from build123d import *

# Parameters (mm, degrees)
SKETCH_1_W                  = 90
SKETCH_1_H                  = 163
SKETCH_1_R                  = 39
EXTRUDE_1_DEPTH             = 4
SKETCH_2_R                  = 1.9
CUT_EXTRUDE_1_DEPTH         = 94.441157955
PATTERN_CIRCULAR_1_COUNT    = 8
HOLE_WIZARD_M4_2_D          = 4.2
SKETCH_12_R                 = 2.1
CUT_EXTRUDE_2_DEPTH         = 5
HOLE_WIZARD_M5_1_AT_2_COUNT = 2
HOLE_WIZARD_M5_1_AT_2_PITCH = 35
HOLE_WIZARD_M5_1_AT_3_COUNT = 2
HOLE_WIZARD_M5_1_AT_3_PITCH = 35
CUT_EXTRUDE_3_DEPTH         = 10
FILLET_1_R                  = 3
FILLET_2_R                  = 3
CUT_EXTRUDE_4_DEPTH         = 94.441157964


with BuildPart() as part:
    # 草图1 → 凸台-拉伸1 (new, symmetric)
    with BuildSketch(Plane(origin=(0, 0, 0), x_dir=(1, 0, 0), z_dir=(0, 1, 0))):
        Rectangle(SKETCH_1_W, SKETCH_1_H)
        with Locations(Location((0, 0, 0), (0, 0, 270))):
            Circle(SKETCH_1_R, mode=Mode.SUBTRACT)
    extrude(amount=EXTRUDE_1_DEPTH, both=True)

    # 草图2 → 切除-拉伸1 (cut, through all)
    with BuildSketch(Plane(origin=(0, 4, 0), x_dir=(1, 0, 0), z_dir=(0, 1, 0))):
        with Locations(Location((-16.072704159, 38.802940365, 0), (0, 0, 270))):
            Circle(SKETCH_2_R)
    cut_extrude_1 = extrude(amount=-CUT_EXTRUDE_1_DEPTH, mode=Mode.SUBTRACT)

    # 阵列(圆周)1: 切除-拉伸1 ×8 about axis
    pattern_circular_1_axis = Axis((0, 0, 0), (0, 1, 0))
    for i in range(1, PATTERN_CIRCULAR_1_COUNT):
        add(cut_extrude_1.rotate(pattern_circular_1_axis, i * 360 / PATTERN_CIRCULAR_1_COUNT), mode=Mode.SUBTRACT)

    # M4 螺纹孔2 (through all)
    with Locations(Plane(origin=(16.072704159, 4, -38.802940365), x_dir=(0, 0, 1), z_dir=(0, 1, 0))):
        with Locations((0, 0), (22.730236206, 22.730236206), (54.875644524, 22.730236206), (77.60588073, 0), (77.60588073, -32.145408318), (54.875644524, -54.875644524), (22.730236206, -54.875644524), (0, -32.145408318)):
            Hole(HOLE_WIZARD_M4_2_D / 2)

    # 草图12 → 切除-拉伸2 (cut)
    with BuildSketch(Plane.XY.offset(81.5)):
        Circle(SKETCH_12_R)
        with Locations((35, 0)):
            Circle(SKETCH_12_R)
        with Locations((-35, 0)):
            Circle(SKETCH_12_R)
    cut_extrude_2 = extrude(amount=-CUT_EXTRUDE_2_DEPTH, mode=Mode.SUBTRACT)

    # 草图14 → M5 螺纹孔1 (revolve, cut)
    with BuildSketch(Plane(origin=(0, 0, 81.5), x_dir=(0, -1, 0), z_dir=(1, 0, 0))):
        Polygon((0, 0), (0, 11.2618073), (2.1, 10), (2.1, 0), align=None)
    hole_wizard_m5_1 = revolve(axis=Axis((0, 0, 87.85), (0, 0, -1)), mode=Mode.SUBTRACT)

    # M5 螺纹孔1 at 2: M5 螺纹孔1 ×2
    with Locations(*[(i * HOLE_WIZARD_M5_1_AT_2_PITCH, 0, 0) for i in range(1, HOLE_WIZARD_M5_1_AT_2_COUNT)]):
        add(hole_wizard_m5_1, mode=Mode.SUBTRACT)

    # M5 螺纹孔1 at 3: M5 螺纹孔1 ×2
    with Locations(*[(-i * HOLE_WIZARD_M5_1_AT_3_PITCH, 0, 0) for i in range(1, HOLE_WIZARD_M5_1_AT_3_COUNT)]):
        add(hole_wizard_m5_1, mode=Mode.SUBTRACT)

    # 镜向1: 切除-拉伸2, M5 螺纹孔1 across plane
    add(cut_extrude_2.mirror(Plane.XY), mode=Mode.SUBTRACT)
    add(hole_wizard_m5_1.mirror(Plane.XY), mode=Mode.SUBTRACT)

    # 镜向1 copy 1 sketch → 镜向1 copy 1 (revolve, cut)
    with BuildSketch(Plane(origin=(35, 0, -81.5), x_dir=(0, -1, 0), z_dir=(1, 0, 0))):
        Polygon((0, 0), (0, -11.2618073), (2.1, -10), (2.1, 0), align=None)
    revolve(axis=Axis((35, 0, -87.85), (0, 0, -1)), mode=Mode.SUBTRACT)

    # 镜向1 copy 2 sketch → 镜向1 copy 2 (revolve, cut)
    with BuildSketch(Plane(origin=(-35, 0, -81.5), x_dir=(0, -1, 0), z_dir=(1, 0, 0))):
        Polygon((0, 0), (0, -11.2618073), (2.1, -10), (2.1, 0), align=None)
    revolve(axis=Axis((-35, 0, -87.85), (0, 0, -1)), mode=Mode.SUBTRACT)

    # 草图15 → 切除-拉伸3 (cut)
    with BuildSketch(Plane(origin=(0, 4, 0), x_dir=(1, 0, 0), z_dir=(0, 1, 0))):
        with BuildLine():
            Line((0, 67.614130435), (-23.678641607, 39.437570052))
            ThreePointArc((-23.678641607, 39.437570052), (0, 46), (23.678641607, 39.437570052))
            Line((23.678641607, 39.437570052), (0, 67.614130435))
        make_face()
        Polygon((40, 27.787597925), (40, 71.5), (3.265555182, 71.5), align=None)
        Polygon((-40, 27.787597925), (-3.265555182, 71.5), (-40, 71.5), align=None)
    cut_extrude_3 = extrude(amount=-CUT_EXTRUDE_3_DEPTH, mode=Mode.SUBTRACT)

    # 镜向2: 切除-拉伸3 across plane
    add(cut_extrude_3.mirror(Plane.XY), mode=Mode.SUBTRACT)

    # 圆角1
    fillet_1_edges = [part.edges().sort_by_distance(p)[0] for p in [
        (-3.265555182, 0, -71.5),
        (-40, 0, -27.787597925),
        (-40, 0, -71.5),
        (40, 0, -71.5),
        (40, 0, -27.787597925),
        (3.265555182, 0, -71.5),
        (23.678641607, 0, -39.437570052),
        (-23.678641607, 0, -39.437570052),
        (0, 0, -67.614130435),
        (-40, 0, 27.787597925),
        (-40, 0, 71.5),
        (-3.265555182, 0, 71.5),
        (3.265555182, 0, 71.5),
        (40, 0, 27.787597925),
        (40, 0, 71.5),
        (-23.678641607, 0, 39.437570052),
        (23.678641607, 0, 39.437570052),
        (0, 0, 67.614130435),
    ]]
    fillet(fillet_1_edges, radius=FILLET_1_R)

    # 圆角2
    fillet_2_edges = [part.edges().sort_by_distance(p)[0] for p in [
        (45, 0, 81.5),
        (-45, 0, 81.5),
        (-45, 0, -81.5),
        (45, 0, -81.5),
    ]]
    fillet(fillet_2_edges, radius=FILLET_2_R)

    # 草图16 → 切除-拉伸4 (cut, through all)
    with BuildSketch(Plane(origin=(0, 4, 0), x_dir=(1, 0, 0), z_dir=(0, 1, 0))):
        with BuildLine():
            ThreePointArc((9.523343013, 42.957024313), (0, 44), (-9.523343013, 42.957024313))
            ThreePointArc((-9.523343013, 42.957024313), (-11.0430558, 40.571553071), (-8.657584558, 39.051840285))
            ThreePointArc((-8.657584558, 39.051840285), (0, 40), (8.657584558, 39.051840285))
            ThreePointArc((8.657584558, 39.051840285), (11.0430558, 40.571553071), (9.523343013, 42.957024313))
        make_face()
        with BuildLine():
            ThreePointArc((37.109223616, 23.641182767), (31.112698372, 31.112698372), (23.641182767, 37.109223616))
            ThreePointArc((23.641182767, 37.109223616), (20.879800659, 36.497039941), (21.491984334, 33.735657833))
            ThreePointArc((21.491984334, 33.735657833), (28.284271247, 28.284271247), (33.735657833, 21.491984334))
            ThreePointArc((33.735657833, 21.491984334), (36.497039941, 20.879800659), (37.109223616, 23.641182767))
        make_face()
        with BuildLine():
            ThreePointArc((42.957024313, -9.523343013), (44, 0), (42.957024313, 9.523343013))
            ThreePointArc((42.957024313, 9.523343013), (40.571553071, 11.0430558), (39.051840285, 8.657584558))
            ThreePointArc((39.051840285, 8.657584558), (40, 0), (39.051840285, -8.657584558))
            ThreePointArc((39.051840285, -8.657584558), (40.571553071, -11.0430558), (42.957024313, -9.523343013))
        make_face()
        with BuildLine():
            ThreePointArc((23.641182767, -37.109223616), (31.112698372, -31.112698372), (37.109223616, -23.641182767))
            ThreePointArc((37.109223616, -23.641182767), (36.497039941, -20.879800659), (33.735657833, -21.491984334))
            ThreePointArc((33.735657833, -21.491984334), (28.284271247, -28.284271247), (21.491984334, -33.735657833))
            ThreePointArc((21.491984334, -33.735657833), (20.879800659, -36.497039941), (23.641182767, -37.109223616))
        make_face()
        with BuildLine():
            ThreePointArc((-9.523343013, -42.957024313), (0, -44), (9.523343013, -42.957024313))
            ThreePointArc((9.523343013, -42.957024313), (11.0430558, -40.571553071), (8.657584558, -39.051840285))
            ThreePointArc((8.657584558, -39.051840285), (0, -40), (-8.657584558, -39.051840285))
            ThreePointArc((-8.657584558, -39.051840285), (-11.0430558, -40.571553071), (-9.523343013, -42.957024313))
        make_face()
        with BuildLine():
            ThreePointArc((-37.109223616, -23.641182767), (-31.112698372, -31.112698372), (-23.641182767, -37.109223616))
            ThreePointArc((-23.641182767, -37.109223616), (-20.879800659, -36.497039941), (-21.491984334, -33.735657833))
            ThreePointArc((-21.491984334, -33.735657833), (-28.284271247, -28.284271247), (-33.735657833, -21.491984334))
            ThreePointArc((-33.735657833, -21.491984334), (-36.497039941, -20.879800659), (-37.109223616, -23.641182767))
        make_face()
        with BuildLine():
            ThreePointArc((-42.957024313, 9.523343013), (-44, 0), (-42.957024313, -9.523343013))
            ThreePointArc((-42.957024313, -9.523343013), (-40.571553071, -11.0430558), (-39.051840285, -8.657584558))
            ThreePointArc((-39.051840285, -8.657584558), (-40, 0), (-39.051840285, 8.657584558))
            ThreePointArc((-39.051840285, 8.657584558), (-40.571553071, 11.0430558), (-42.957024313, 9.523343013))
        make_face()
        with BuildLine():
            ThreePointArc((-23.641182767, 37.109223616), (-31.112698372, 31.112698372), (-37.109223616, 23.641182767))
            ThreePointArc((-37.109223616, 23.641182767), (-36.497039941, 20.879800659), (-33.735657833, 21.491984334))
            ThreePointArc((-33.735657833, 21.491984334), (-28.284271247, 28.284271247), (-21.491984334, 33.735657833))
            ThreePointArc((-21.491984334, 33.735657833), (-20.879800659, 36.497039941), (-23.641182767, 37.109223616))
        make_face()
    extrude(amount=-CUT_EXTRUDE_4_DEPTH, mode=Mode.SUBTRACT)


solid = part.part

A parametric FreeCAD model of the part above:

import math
import FreeCAD as App
import Part
import Sketcher
Q = App.Units.Quantity


def edges_at(feature, points):
    """Names of the edges that pass closest to the given points."""
    edges = feature.Shape.Edges
    near = lambda p: min(range(len(edges)), key=lambda i: edges[i].distToShape(Part.Vertex(*p))[0])
    return sorted({f"Edge{near(p) + 1}" for p in points})


def add_polygon(sketch, points):
    """Adds a closed chain of lines whose ends are joined by coincident constraints."""
    first, n = sketch.GeometryCount, len(points)
    for a, b in zip(points, points[1:] + points[:1]):
        sketch.addGeometry(Part.LineSegment(App.Vector(*a, 0), App.Vector(*b, 0)), False)
    for i in range(n):
        sketch.addConstraint(Sketcher.Constraint("Coincident", first + i, 2, first + (i + 1) % n, 1))

doc = App.newDocument("Part")
body = doc.addObject("PartDesign::Body", "Body")

sketch1 = body.newObject("Sketcher::SketchObject", "Sketch")
sketch1.AttachmentSupport = (doc.getObject("XZ_Plane"), [""])
sketch1.MapMode = "FlatFace"
add_polygon(sketch1, [(-45, -81.5), (-45, 81.5), (45, 81.5), (45, -81.5)])
sketch1.addGeometry(Part.Circle(App.Vector(0, 0, 0), App.Vector(0, 0, 1), 39), False)
sketch1.addConstraint([
    Sketcher.Constraint("Vertical", 0),
    Sketcher.Constraint("Horizontal", 1),
    Sketcher.Constraint("Vertical", 2),
    Sketcher.Constraint("Horizontal", 3),
    Sketcher.Constraint("Coincident", 4, 3, -1, 1),
    Sketcher.Constraint("Symmetric", 0, 2, 2, 2, -1, 1),
    Sketcher.Constraint("Diameter", 4, Q("78 mm")),
    Sketcher.Constraint("DistanceX", 1, 1, 1, 2, Q("90 mm")),
    Sketcher.Constraint("DistanceY", 0, 1, 0, 2, Q("163 mm")),
])
pad1 = body.newObject("PartDesign::Pad", "Pad")
pad1.Profile = sketch1
pad1.Length = 8
pad1.Midplane = True

sketch2 = body.newObject("Sketcher::SketchObject", "Sketch001")
sketch2.AttachmentSupport = (doc.getObject("XZ_Plane"), [""])
sketch2.MapMode = "FlatFace"
sketch2.AttachmentOffset = App.Placement(App.Vector(0, 0, -4), App.Rotation())
sketch2.addGeometry(Part.Circle(App.Vector(-16.072704, -38.80294, 0), App.Vector(0, 0, 1), 1.9), False)
sketch2.addConstraint([
    Sketcher.Constraint("Diameter", 0, Q("3.8 mm")),
    Sketcher.Constraint("DistanceY", 0, 3, -1, 1, Q("38.80294 mm")),
    Sketcher.Constraint("DistanceX", 0, 3, -1, 1, Q("16.072704 mm")),
])
pocket1 = body.newObject("PartDesign::Pocket", "Pocket")
pocket1.Profile = sketch2
pocket1.Type = "ThroughAll"
pocket1.Reversed = True
doc.recompute()

polarpattern = body.newObject("PartDesign::PolarPattern", "PolarPattern")
polarpattern.Originals = [pocket1]
polarpattern.Axis = (doc.getObject("Y_Axis"), [""])
polarpattern.Angle = 360
polarpattern.Occurrences = 8
body.Tip = polarpattern

sketch3 = body.newObject("Sketcher::SketchObject", "Sketch002")
sketch3.AttachmentSupport = (doc.getObject("XZ_Plane"), [""])
sketch3.MapMode = "FlatFace"
sketch3.AttachmentOffset = App.Placement(App.Vector(0, 0, -4), App.Rotation())
sketch3.addGeometry([
    Part.Circle(App.Vector(16.072704, -38.80294, 0), App.Vector(0, 0, 1), 2.1),
    Part.Circle(App.Vector(38.80294, -16.072704, 0), App.Vector(0, 0, 1), 2.1),
    Part.Circle(App.Vector(38.80294, 16.072704, 0), App.Vector(0, 0, 1), 2.1),
    Part.Circle(App.Vector(16.072704, 38.80294, 0), App.Vector(0, 0, 1), 2.1),
    Part.Circle(App.Vector(-16.072704, 38.80294, 0), App.Vector(0, 0, 1), 2.1),
    Part.Circle(App.Vector(-38.80294, 16.072704, 0), App.Vector(0, 0, 1), 2.1),
    Part.Circle(App.Vector(-38.80294, -16.072704, 0), App.Vector(0, 0, 1), 2.1),
    Part.Circle(App.Vector(-16.072704, -38.80294, 0), App.Vector(0, 0, 1), 2.1),
], False)
sketch3.addConstraint([
    Sketcher.Constraint("Equal", 0, 1),
    Sketcher.Constraint("Equal", 1, 2),
    Sketcher.Constraint("Equal", 2, 3),
    Sketcher.Constraint("Equal", 3, 4),
    Sketcher.Constraint("Equal", 4, 5),
    Sketcher.Constraint("Equal", 5, 6),
    Sketcher.Constraint("Equal", 6, 7),
    Sketcher.Constraint("Symmetric", 0, 3, 4, 3, -1, 1),
    Sketcher.Constraint("Symmetric", 1, 3, 5, 3, -1, 1),
    Sketcher.Constraint("Symmetric", 2, 3, 6, 3, -1, 1),
    Sketcher.Constraint("Symmetric", 3, 3, 7, 3, -1, 1),
    Sketcher.Constraint("Symmetric", 3, 3, 4, 3, -2),
    Sketcher.Constraint("Symmetric", 2, 3, 5, 3, -2),
    Sketcher.Constraint("Diameter", 0, Q("4.2 mm")),
    Sketcher.Constraint("DistanceY", 0, 3, -1, 1, Q("38.80294 mm")),
    Sketcher.Constraint("DistanceX", -1, 1, 1, 3, Q("38.80294 mm")),
    Sketcher.Constraint("DistanceY", 1, 3, 2, 3, Q("32.145408 mm")),
    Sketcher.Constraint("DistanceX", 4, 3, 3, 3, Q("32.145408 mm")),
])
doc.recompute()
hole = body.newObject("PartDesign::Hole", "Hole")
hole.Profile = sketch3
hole.ThreadType = "None"
hole.Diameter = 4.2
hole.DepthType = "ThroughAll"
hole.Reversed = True

sketch4 = body.newObject("Sketcher::SketchObject", "Sketch003")
sketch4.AttachmentSupport = (doc.getObject("XY_Plane"), [""])
sketch4.MapMode = "FlatFace"
sketch4.AttachmentOffset = App.Placement(App.Vector(0, 0, 81.5), App.Rotation())
sketch4.addGeometry([
    Part.Circle(App.Vector(0, 0, 0), App.Vector(0, 0, 1), 2.1),
    Part.Circle(App.Vector(35, 0, 0), App.Vector(0, 0, 1), 2.1),
    Part.Circle(App.Vector(-35, 0, 0), App.Vector(0, 0, 1), 2.1),
], False)
sketch4.addConstraint([
    Sketcher.Constraint("Coincident", 0, 3, -1, 1),
    Sketcher.Constraint("Equal", 0, 1),
    Sketcher.Constraint("Equal", 1, 2),
    Sketcher.Constraint("Symmetric", 1, 3, 2, 3, -1, 1),
    Sketcher.Constraint("PointOnObject", 1, 3, -1),
    Sketcher.Constraint("Diameter", 0, Q("4.2 mm")),
    Sketcher.Constraint("DistanceX", -1, 1, 1, 3, Q("35 mm")),
])
pocket2 = body.newObject("PartDesign::Pocket", "Pocket001")
pocket2.Profile = sketch4
pocket2.Length = 5

sketch5 = body.newObject("Sketcher::SketchObject", "Sketch004")
sketch5.AttachmentSupport = (doc.getObject("YZ_Plane"), [""])
sketch5.MapMode = "FlatFace"
add_polygon(sketch5, [(0, 70.238193), (0, 81.5), (-2.1, 81.5), (-2.1, 71.5)])
sketch5.addConstraint([
    Sketcher.Constraint("Vertical", 0),
    Sketcher.Constraint("Horizontal", 1),
    Sketcher.Constraint("Vertical", 2),
    Sketcher.Constraint("PointOnObject", 0, 2, -2),
    Sketcher.Constraint("DistanceY", 2, 2, 2, 1, Q("10 mm")),
    Sketcher.Constraint("Angle", 3, Q("-31 deg")),
    Sketcher.Constraint("DistanceX", 1, 2, 1, 1, Q("2.1 mm")),
    Sketcher.Constraint("DistanceY", -1, 1, 0, 2, Q("81.5 mm")),
])
groove = body.newObject("PartDesign::Groove", "Groove")
groove.Profile = sketch5
groove.ReferenceAxis = (sketch5, ["V_Axis"])
groove.Angle = 360
doc.recompute()

linearpattern = body.newObject("PartDesign::LinearPattern", "LinearPattern")
linearpattern.Originals = [groove]
linearpattern.Direction = (doc.getObject("X_Axis"), [""])
linearpattern.Mode = "offset"
linearpattern.Offset = 35
linearpattern.Occurrences = 2
body.Tip = linearpattern
doc.recompute()

linearpattern2 = body.newObject("PartDesign::LinearPattern", "LinearPattern001")
linearpattern2.Originals = [groove]
linearpattern2.Direction = (doc.getObject("X_Axis"), [""])
linearpattern2.Mode = "offset"
linearpattern2.Offset = 35
linearpattern2.Occurrences = 2
linearpattern2.Reversed = True
body.Tip = linearpattern2
doc.recompute()

mirrored = body.newObject("PartDesign::Mirrored", "Mirrored")
mirrored.Originals = [pocket2, groove]
mirrored.MirrorPlane = (doc.getObject("XY_Plane"), [""])
body.Tip = mirrored

sketch6 = body.newObject("Sketcher::SketchObject", "Sketch005")
sketch6.AttachmentSupport = (doc.getObject("YZ_Plane"), [""])
sketch6.MapMode = "FlatFace"
sketch6.AttachmentOffset = App.Placement(App.Vector(0, 0, 35), App.Rotation())
add_polygon(sketch6, [(0, -81.5), (0, -70.238193), (-2.1, -71.5), (-2.1, -81.5)])
sketch6.addConstraint([
    Sketcher.Constraint("Vertical", 0),
    Sketcher.Constraint("Vertical", 2),
    Sketcher.Constraint("Horizontal", 3),
    Sketcher.Constraint("PointOnObject", 0, 2, -2),
    Sketcher.Constraint("DistanceY", 2, 2, 2, 1, Q("10 mm")),
    Sketcher.Constraint("Angle", 1, Q("-149 deg")),
    Sketcher.Constraint("DistanceX", 3, 1, 3, 2, Q("2.1 mm")),
    Sketcher.Constraint("DistanceY", 1, 2, -1, 1, Q("71.5 mm")),
])
groove2 = body.newObject("PartDesign::Groove", "Groove001")
groove2.Profile = sketch6
groove2.ReferenceAxis = (sketch6, ["V_Axis"])
groove2.Angle = 360

sketch7 = body.newObject("Sketcher::SketchObject", "Sketch006")
sketch7.AttachmentSupport = (doc.getObject("YZ_Plane"), [""])
sketch7.MapMode = "FlatFace"
sketch7.AttachmentOffset = App.Placement(App.Vector(0, 0, -35), App.Rotation())
add_polygon(sketch7, [(0, -81.5), (0, -70.238193), (-2.1, -71.5), (-2.1, -81.5)])
sketch7.addConstraint([
    Sketcher.Constraint("Vertical", 0),
    Sketcher.Constraint("Vertical", 2),
    Sketcher.Constraint("Horizontal", 3),
    Sketcher.Constraint("PointOnObject", 0, 2, -2),
    Sketcher.Constraint("DistanceY", 2, 2, 2, 1, Q("10 mm")),
    Sketcher.Constraint("Angle", 1, Q("-149 deg")),
    Sketcher.Constraint("DistanceX", 3, 1, 3, 2, Q("2.1 mm")),
    Sketcher.Constraint("DistanceY", 1, 2, -1, 1, Q("71.5 mm")),
])
groove3 = body.newObject("PartDesign::Groove", "Groove002")
groove3.Profile = sketch7
groove3.ReferenceAxis = (sketch7, ["V_Axis"])
groove3.Angle = 360

sketch8 = body.newObject("Sketcher::SketchObject", "Sketch007")
sketch8.AttachmentSupport = (doc.getObject("XZ_Plane"), [""])
sketch8.MapMode = "FlatFace"
sketch8.AttachmentOffset = App.Placement(App.Vector(0, 0, -4), App.Rotation())
sketch8.addGeometry(Part.LineSegment(App.Vector(0, -67.61413, 0), App.Vector(-23.678642, -39.43757, 0)), False)
sketch8.addGeometry(Part.ArcOfCircle(Part.Circle(App.Vector(0, 0, 0), App.Vector(0, 0, 1), 46), math.radians(-120.980952), math.radians(-59.019048)), False)
sketch8.addGeometry(Part.LineSegment(App.Vector(23.678642, -39.43757, 0), App.Vector(0, -67.61413, 0)), False)
add_polygon(sketch8, [(40, -27.787598), (40, -71.5), (3.265555, -71.5)])
add_polygon(sketch8, [(-40, -27.787598), (-3.265555, -71.5), (-40, -71.5)])
sketch8.addConstraint([
    Sketcher.Constraint("Coincident", 0, 2, 1, 1),
    Sketcher.Constraint("Coincident", 1, 2, 2, 1),
    Sketcher.Constraint("Coincident", 2, 2, 0, 1),
    Sketcher.Constraint("Vertical", 3),
    Sketcher.Constraint("Horizontal", 4),
    Sketcher.Constraint("Horizontal", 7),
    Sketcher.Constraint("Vertical", 8),
    Sketcher.Constraint("Coincident", 1, 3, -1, 1),
    Sketcher.Constraint("Symmetric", 4, 2, 6, 2, -2),
    Sketcher.Constraint("Symmetric", 5, 2, 8, 2, -2),
    Sketcher.Constraint("PointOnObject", 2, 2, -2),
    Sketcher.Constraint("Parallel", 2, 5),
    Sketcher.Constraint("Parallel", 0, 6),
    Sketcher.Constraint("Radius", 1, Q("46 mm")),
    Sketcher.Constraint("DistanceX", -1, 1, 3, 2, Q("40 mm")),
    Sketcher.Constraint("DistanceY", 3, 2, -1, 1, Q("71.5 mm")),
    Sketcher.Constraint("DistanceX", 4, 2, 4, 1, Q("36.734445 mm")),
    Sketcher.Constraint("DistanceY", 3, 2, 3, 1, Q("43.712402 mm")),
    Sketcher.Constraint("DistanceX", 0, 2, -1, 1, Q("23.678642 mm")),
])
pocket3 = body.newObject("PartDesign::Pocket", "Pocket002")
pocket3.Profile = sketch8
pocket3.Length = 10
pocket3.Reversed = True
doc.recompute()

mirrored2 = body.newObject("PartDesign::Mirrored", "Mirrored001")
mirrored2.Originals = [pocket3]
mirrored2.MirrorPlane = (doc.getObject("XY_Plane"), [""])
body.Tip = mirrored2
doc.recompute()

fillet = body.newObject("PartDesign::Fillet", "Fillet")
fillet.Base = (mirrored2, edges_at(mirrored2, [
    (-3.266, 0, -71.5),
    (-40, 0, -27.788),
    (-40, 0, -71.5),
    (40, 0, -71.5),
    (40, 0, -27.788),
    (3.266, 0, -71.5),
    (23.679, 0, -39.438),
    (-23.679, 0, -39.438),
    (0, 0, -67.614),
    (-40, 0, 27.788),
    (-40, 0, 71.5),
    (-3.266, 0, 71.5),
    (3.266, 0, 71.5),
    (40, 0, 27.788),
    (40, 0, 71.5),
    (-23.679, 0, 39.438),
    (23.679, 0, 39.438),
    (0, 0, 67.614),
]))
fillet.Radius = 3
doc.recompute()

fillet2 = body.newObject("PartDesign::Fillet", "Fillet001")
fillet2.Base = (fillet, edges_at(fillet, [
    (45, 0, 81.5),
    (-45, 0, 81.5),
    (-45, 0, -81.5),
    (45, 0, -81.5),
]))
fillet2.Radius = 3

sketch9 = body.newObject("Sketcher::SketchObject", "Sketch008")
sketch9.AttachmentSupport = (doc.getObject("XZ_Plane"), [""])
sketch9.MapMode = "FlatFace"
sketch9.AttachmentOffset = App.Placement(App.Vector(0, 0, -4), App.Rotation())
sketch9.addGeometry([
    Part.ArcOfCircle(Part.Circle(App.Vector(0, 0, 0), App.Vector(0, 0, 1), 44), math.radians(-102.5), math.radians(-77.5)),
    Part.ArcOfCircle(Part.Circle(App.Vector(-9.090464, -41.004432, 0), App.Vector(0, 0, 1), 2), math.radians(77.5), math.radians(257.5)),
    Part.ArcOfCircle(Part.Circle(App.Vector(0, 0, 0), App.Vector(0, 0, 1), 40), math.radians(-102.5), math.radians(-77.5)),
    Part.ArcOfCircle(Part.Circle(App.Vector(9.090464, -41.004432, 0), App.Vector(0, 0, 1), 2), math.radians(-77.5), math.radians(102.5)),
    Part.ArcOfCircle(Part.Circle(App.Vector(0, 0, 0), App.Vector(0, 0, 1), 44), math.radians(-57.5), math.radians(-32.5)),
    Part.ArcOfCircle(Part.Circle(App.Vector(22.566584, -35.422441, 0), App.Vector(0, 0, 1), 2), math.radians(122.5), math.radians(302.5)),
    Part.ArcOfCircle(Part.Circle(App.Vector(0, 0, 0), App.Vector(0, 0, 1), 40), math.radians(-57.5), math.radians(-32.5)),
    Part.ArcOfCircle(Part.Circle(App.Vector(35.422441, -22.566584, 0), App.Vector(0, 0, 1), 2), math.radians(-32.5), math.radians(147.5)),
    Part.ArcOfCircle(Part.Circle(App.Vector(0, 0, 0), App.Vector(0, 0, 1), 44), math.radians(-12.5), math.radians(12.5)),
    Part.ArcOfCircle(Part.Circle(App.Vector(41.004432, -9.090464, 0), App.Vector(0, 0, 1), 2), math.radians(167.5), math.radians(347.5)),
    Part.ArcOfCircle(Part.Circle(App.Vector(0, 0, 0), App.Vector(0, 0, 1), 40), math.radians(-12.5), math.radians(12.5)),
    Part.ArcOfCircle(Part.Circle(App.Vector(41.004432, 9.090464, 0), App.Vector(0, 0, 1), 2), math.radians(12.5), math.radians(192.5)),
    Part.ArcOfCircle(Part.Circle(App.Vector(0, 0, 0), App.Vector(0, 0, 1), 44), math.radians(32.5), math.radians(57.5)),
    Part.ArcOfCircle(Part.Circle(App.Vector(35.422441, 22.566584, 0), App.Vector(0, 0, 1), 2), math.radians(-147.5), math.radians(32.5)),
    Part.ArcOfCircle(Part.Circle(App.Vector(0, 0, 0), App.Vector(0, 0, 1), 40), math.radians(32.5), math.radians(57.5)),
    Part.ArcOfCircle(Part.Circle(App.Vector(22.566584, 35.422441, 0), App.Vector(0, 0, 1), 2), math.radians(57.5), math.radians(237.5)),
    Part.ArcOfCircle(Part.Circle(App.Vector(0, 0, 0), App.Vector(0, 0, 1), 44), math.radians(77.5), math.radians(102.5)),
    Part.ArcOfCircle(Part.Circle(App.Vector(9.090464, 41.004432, 0), App.Vector(0, 0, 1), 2), math.radians(-102.5), math.radians(77.5)),
    Part.ArcOfCircle(Part.Circle(App.Vector(0, 0, 0), App.Vector(0, 0, 1), 40), math.radians(77.5), math.radians(102.5)),
    Part.ArcOfCircle(Part.Circle(App.Vector(-9.090464, 41.004432, 0), App.Vector(0, 0, 1), 2), math.radians(102.5), math.radians(282.5)),
    Part.ArcOfCircle(Part.Circle(App.Vector(0, 0, 0), App.Vector(0, 0, 1), 44), math.radians(122.5), math.radians(147.5)),
    Part.ArcOfCircle(Part.Circle(App.Vector(-22.566584, 35.422441, 0), App.Vector(0, 0, 1), 2), math.radians(-57.5), math.radians(122.5)),
    Part.ArcOfCircle(Part.Circle(App.Vector(0, 0, 0), App.Vector(0, 0, 1), 40), math.radians(122.5), math.radians(147.5)),
    Part.ArcOfCircle(Part.Circle(App.Vector(-35.422441, 22.566584, 0), App.Vector(0, 0, 1), 2), math.radians(147.5), math.radians(327.5)),
    Part.ArcOfCircle(Part.Circle(App.Vector(0, 0, 0), App.Vector(0, 0, 1), 44), math.radians(167.5), math.radians(192.5)),
    Part.ArcOfCircle(Part.Circle(App.Vector(-41.004432, 9.090464, 0), App.Vector(0, 0, 1), 2), math.radians(-12.5), math.radians(167.5)),
    Part.ArcOfCircle(Part.Circle(App.Vector(0, 0, 0), App.Vector(0, 0, 1), 40), math.radians(167.5), math.radians(192.5)),
    Part.ArcOfCircle(Part.Circle(App.Vector(-41.004432, -9.090464, 0), App.Vector(0, 0, 1), 2), math.radians(-167.5), math.radians(12.5)),
    Part.ArcOfCircle(Part.Circle(App.Vector(0, 0, 0), App.Vector(0, 0, 1), 44), math.radians(-147.5), math.radians(-122.5)),
    Part.ArcOfCircle(Part.Circle(App.Vector(-35.422441, -22.566584, 0), App.Vector(0, 0, 1), 2), math.radians(32.5), math.radians(212.5)),
    Part.ArcOfCircle(Part.Circle(App.Vector(0, 0, 0), App.Vector(0, 0, 1), 40), math.radians(-147.5), math.radians(-122.5)),
    Part.ArcOfCircle(Part.Circle(App.Vector(-22.566584, -35.422441, 0), App.Vector(0, 0, 1), 2), math.radians(-122.5), math.radians(57.5)),
], False)
sketch9.addConstraint([
    Sketcher.Constraint("Tangent", 0, 1, 1, 2),
    Sketcher.Constraint("Tangent", 1, 1, 2, 1),
    Sketcher.Constraint("Tangent", 2, 2, 3, 2),
    Sketcher.Constraint("Tangent", 3, 1, 0, 2),
    Sketcher.Constraint("Tangent", 4, 1, 5, 2),
    Sketcher.Constraint("Tangent", 5, 1, 6, 1),
    Sketcher.Constraint("Tangent", 6, 2, 7, 2),
    Sketcher.Constraint("Tangent", 7, 1, 4, 2),
    Sketcher.Constraint("Tangent", 8, 1, 9, 2),
    Sketcher.Constraint("Tangent", 9, 1, 10, 1),
    Sketcher.Constraint("Tangent", 10, 2, 11, 2),
    Sketcher.Constraint("Tangent", 11, 1, 8, 2),
    Sketcher.Constraint("Tangent", 12, 1, 13, 2),
    Sketcher.Constraint("Tangent", 13, 1, 14, 1),
    Sketcher.Constraint("Tangent", 14, 2, 15, 2),
    Sketcher.Constraint("Tangent", 15, 1, 12, 2),
    Sketcher.Constraint("Tangent", 16, 1, 17, 2),
    Sketcher.Constraint("Tangent", 17, 1, 18, 1),
    Sketcher.Constraint("Tangent", 18, 2, 19, 2),
    Sketcher.Constraint("Tangent", 19, 1, 16, 2),
    Sketcher.Constraint("Tangent", 20, 1, 21, 2),
    Sketcher.Constraint("Tangent", 21, 1, 22, 1),
    Sketcher.Constraint("Tangent", 22, 2, 23, 2),
    Sketcher.Constraint("Tangent", 23, 1, 20, 2),
    Sketcher.Constraint("Tangent", 24, 1, 25, 2),
    Sketcher.Constraint("Tangent", 25, 1, 26, 1),
    Sketcher.Constraint("Tangent", 26, 2, 27, 2),
    Sketcher.Constraint("Tangent", 27, 1, 24, 2),
    Sketcher.Constraint("Tangent", 28, 1, 29, 2),
    Sketcher.Constraint("Tangent", 29, 1, 30, 1),
    Sketcher.Constraint("Tangent", 30, 2, 31, 2),
    Sketcher.Constraint("Tangent", 31, 1, 28, 2),
    Sketcher.Constraint("Coincident", 0, 3, -1, 1),
    Sketcher.Constraint("Coincident", 2, 3, -1, 1),
    Sketcher.Constraint("Coincident", 4, 3, -1, 1),
    Sketcher.Constraint("Coincident", 6, 3, -1, 1),
    Sketcher.Constraint("Coincident", 8, 3, -1, 1),
    Sketcher.Constraint("Coincident", 10, 3, -1, 1),
    Sketcher.Constraint("Coincident", 12, 3, -1, 1),
    Sketcher.Constraint("Coincident", 14, 3, -1, 1),
    Sketcher.Constraint("Coincident", 16, 3, -1, 1),
    Sketcher.Constraint("Coincident", 18, 3, -1, 1),
    Sketcher.Constraint("Coincident", 20, 3, -1, 1),
    Sketcher.Constraint("Coincident", 22, 3, -1, 1),
    Sketcher.Constraint("Coincident", 24, 3, -1, 1),
    Sketcher.Constraint("Coincident", 26, 3, -1, 1),
    Sketcher.Constraint("Coincident", 28, 3, -1, 1),
    Sketcher.Constraint("Coincident", 30, 3, -1, 1),
    Sketcher.Constraint("Equal", 0, 4),
    Sketcher.Constraint("Equal", 3, 5),
    Sketcher.Constraint("Equal", 4, 8),
    Sketcher.Constraint("Equal", 7, 9),
    Sketcher.Constraint("Equal", 8, 12),
    Sketcher.Constraint("Equal", 11, 13),
    Sketcher.Constraint("Equal", 12, 16),
    Sketcher.Constraint("Equal", 15, 17),
    Sketcher.Constraint("Equal", 16, 20),
    Sketcher.Constraint("Equal", 19, 21),
    Sketcher.Constraint("Equal", 20, 24),
    Sketcher.Constraint("Equal", 23, 25),
    Sketcher.Constraint("Equal", 24, 28),
    Sketcher.Constraint("Equal", 27, 29),
    Sketcher.Constraint("Horizontal", 1, 3, 3, 3),
    Sketcher.Constraint("Horizontal", 17, 3, 19, 3),
    Sketcher.Constraint("Horizontal", 15, 3, 21, 3),
    Sketcher.Constraint("Horizontal", 13, 3, 23, 3),
    Sketcher.Constraint("Horizontal", 11, 3, 25, 3),
    Sketcher.Constraint("Horizontal", 9, 3, 27, 3),
    Sketcher.Constraint("Horizontal", 7, 3, 29, 3),
    Sketcher.Constraint("Horizontal", 5, 3, 31, 3),
    Sketcher.Constraint("Vertical", 9, 3, 11, 3),
    Sketcher.Constraint("Vertical", 7, 3, 13, 3),
    Sketcher.Constraint("Vertical", 5, 3, 15, 3),
    Sketcher.Constraint("Vertical", 3, 3, 17, 3),
    Sketcher.Constraint("Radius", 0, Q("44 mm")),
    Sketcher.Constraint("Radius", 1, Q("2 mm")),
    Sketcher.Constraint("DistanceY", 5, 3, -1, 1, Q("35.422441 mm")),
    Sketcher.Constraint("DistanceX", -1, 1, 7, 3, Q("35.422441 mm")),
    Sketcher.Constraint("DistanceY", 1, 1, -1, 1, Q("39.05184 mm")),
    Sketcher.Constraint("DistanceX", -1, 1, 9, 1, Q("39.05184 mm")),
])
pocket4 = body.newObject("PartDesign::Pocket", "Pocket003")
pocket4.Profile = sketch9
pocket4.Type = "ThroughAll"
pocket4.Reversed = True

doc.recompute()
